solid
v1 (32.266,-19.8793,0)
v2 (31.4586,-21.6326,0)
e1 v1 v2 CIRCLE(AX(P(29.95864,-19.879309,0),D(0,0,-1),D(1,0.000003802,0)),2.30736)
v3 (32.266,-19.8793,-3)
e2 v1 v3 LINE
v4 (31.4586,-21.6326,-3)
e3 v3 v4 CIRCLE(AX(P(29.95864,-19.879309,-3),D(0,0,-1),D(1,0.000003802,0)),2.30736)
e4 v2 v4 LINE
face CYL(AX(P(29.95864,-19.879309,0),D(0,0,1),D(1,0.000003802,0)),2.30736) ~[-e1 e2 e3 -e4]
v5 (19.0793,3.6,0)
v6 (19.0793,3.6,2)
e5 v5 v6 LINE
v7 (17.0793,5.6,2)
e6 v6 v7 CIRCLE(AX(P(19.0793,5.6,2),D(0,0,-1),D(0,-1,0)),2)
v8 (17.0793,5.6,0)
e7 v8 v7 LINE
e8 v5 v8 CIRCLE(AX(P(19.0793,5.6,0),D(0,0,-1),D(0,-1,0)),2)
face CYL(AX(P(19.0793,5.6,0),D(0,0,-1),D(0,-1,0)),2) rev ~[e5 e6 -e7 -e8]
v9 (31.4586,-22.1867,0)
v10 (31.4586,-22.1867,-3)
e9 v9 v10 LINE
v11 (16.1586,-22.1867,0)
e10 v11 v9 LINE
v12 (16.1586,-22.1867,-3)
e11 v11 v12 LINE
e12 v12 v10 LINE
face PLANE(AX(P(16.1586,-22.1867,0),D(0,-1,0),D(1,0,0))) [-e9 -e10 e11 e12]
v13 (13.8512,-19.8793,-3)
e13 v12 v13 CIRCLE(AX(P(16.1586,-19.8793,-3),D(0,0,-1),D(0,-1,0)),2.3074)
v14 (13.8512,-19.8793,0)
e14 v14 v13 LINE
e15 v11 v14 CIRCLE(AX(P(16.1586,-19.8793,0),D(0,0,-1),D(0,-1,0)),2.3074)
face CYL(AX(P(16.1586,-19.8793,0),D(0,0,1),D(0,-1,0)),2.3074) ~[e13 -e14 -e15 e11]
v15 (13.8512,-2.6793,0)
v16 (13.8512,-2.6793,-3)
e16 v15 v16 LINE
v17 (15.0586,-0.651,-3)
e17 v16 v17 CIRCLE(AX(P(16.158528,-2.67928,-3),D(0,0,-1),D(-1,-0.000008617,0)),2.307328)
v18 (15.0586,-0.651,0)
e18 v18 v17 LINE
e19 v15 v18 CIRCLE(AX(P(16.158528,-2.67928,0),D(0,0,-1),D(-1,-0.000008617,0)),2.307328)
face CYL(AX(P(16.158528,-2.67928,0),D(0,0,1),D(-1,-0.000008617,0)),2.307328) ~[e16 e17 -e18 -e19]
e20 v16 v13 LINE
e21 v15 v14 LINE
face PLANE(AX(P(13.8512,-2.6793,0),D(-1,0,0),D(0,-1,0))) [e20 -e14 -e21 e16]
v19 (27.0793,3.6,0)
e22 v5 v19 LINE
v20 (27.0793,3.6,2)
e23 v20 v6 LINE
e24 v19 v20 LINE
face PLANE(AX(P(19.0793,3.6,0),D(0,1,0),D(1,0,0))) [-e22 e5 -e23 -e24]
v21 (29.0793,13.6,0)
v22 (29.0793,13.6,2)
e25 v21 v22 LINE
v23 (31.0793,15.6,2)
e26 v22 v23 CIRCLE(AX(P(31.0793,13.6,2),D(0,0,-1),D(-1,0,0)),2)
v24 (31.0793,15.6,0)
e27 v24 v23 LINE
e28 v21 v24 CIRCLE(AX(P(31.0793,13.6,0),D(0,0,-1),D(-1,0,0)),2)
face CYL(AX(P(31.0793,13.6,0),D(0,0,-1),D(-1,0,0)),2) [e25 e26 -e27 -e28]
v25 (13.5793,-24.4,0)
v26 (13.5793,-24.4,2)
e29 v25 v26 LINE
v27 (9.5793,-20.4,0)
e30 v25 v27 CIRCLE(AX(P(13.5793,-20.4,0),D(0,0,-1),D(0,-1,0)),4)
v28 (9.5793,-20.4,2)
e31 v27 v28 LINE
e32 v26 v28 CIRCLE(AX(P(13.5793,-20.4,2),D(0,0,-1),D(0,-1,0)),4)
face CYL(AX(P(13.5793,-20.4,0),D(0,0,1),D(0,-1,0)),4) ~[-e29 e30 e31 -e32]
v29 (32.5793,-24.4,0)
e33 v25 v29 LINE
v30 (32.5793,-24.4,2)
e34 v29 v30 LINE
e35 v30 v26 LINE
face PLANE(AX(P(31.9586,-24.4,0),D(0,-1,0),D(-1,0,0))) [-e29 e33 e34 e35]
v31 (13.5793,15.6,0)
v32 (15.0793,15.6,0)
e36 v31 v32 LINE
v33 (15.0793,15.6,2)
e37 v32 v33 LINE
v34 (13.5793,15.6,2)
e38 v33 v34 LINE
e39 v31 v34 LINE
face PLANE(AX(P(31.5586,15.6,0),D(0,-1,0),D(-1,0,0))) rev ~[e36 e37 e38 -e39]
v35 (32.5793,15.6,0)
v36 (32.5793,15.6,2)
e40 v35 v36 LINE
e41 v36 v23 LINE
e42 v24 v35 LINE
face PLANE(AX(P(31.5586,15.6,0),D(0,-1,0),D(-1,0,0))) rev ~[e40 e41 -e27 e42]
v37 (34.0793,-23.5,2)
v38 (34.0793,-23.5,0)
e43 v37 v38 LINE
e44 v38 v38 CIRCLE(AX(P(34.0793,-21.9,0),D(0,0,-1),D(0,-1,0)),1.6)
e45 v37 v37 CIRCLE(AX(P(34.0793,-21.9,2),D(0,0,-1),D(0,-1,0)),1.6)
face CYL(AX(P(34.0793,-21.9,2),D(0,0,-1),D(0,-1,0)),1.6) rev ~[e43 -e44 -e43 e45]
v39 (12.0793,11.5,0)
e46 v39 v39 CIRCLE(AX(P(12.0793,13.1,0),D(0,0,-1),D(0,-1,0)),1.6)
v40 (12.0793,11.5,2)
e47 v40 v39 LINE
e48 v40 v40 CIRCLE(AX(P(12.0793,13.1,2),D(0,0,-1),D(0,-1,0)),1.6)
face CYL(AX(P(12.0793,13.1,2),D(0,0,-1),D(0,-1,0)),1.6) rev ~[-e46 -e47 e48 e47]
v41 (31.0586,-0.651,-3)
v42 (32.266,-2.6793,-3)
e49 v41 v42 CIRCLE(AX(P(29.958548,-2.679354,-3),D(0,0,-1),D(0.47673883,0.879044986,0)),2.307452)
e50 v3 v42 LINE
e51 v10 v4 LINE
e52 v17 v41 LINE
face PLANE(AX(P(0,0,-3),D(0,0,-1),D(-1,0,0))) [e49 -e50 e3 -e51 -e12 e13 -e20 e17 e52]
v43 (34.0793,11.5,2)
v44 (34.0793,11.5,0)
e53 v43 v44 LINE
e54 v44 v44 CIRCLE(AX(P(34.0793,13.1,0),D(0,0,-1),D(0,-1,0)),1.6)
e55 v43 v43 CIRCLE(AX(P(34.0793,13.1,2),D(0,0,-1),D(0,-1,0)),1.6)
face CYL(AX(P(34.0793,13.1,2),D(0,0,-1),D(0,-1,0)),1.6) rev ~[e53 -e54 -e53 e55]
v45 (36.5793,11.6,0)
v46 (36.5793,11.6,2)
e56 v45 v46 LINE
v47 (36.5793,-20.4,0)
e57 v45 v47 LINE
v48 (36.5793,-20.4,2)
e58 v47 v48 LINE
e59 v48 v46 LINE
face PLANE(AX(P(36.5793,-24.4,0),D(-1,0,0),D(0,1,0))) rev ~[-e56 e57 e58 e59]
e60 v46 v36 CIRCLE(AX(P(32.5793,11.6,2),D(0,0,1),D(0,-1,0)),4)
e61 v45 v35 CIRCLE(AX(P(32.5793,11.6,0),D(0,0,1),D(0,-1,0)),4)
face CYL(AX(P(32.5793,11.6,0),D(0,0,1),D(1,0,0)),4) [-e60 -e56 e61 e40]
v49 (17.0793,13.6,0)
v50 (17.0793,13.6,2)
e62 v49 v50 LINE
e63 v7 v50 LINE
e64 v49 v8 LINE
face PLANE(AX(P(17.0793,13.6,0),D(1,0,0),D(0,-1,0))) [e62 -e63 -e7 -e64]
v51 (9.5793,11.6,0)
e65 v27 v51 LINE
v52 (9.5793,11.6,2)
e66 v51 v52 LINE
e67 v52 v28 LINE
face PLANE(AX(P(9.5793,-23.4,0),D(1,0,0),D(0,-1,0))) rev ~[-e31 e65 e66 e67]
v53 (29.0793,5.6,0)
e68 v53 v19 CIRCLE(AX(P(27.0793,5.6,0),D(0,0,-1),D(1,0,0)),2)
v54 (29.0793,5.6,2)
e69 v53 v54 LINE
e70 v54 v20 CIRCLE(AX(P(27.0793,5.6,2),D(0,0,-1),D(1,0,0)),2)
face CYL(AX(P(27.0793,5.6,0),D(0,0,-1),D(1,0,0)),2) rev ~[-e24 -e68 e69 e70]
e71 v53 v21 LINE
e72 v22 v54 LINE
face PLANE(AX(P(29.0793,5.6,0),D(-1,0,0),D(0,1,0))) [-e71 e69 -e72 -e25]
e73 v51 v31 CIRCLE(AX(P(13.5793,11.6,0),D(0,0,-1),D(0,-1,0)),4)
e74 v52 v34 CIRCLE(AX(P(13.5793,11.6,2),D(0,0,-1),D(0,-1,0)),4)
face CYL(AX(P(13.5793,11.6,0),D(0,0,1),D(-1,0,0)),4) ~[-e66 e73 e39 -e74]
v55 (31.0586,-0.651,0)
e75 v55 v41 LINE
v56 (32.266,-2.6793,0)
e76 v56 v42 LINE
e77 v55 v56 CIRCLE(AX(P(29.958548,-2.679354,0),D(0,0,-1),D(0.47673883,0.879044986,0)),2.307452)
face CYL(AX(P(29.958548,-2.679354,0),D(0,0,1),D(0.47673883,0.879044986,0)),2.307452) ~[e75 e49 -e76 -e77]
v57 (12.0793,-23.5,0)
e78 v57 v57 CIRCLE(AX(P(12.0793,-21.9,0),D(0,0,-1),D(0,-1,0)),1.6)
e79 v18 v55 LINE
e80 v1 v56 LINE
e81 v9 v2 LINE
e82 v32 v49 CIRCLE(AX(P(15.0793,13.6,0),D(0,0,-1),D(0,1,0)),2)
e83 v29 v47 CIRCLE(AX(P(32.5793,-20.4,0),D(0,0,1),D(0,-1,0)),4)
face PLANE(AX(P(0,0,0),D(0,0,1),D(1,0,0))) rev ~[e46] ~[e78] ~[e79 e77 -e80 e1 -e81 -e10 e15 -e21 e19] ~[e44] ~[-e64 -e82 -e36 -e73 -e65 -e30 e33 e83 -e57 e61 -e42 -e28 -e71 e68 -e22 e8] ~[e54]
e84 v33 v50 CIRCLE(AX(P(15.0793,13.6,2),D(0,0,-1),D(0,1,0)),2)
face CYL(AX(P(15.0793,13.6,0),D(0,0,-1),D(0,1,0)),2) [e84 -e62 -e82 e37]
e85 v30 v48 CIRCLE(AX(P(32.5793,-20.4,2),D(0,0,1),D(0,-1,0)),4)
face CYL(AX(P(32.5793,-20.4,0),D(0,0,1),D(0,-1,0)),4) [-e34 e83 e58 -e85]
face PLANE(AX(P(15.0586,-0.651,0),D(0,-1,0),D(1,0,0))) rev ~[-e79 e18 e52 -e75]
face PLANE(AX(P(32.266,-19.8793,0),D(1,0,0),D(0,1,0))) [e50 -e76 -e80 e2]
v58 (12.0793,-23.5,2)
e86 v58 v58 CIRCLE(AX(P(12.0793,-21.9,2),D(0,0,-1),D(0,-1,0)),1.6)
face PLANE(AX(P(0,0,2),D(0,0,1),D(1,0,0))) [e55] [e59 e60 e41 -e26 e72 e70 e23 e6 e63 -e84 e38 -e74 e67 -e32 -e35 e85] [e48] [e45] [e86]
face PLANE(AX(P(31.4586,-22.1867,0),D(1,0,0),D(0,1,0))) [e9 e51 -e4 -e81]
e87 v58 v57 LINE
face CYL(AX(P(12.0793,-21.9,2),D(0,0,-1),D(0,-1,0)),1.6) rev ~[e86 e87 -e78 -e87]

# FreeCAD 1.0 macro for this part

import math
import FreeCAD as App
import Part
import Sketcher

V = App.Vector
Q = App.Units.Quantity


def edges_at(feature, points):
    """Names of the edges that pass closest to the given points."""
    edges = feature.Shape.Edges
    near = lambda p: min(range(len(edges)), key=lambda i: edges[i].distToShape(Part.Vertex(*p))[0])
    return sorted({f"Edge{near(p) + 1}" for p in points})


def add_polygon(sketch, points):
    """Adds a closed chain of lines whose ends are joined by coincident constraints."""
    first, n = sketch.GeometryCount, len(points)
    for a, b in zip(points, points[1:] + points[:1]):
        sketch.addGeometry(Part.LineSegment(App.Vector(*a, 0), App.Vector(*b, 0)), False)
    for i in range(n):
        sketch.addConstraint(Sketcher.Constraint("Coincident", first + i, 2, first + (i + 1) % n, 1))

doc = App.newDocument("Part")
params = doc.addObject("Spreadsheet::Sheet", "Params")
for row, (alias, value) in enumerate([
    ("sketch1_width", "27 mm"),
    ("sketch1_height", "40 mm"),
    ("pad1_length", "2 mm"),
    ("sketch2_diameter", "3.2 mm"),
    ("hole_diameter", "3.2 mm"),
    ("sketch3_width", "16 mm"),
    ("sketch3_width2", "15.3 mm"),
    ("sketch3_height", "17.2 mm"),
    ("pad2_length", "3 mm"),
    ("fillet_radius", "4 mm"),
    ("sketch4_radius", "2 mm"),
    ("sketch4_width", "8 mm"),
    ("pocket1_length", "10 mm"),
], start=1):
    params.set(f"A{row}", alias)
    params.set(f"B{row}", "=" + value)
    params.setAlias(f"B{row}", alias)

body = doc.addObject("PartDesign::Body", "Body")

# Sketch on XY plane
sketch1 = body.newObject("Sketcher::SketchObject", "Sketch")
sketch1.AttachmentSupport = (doc.getObject("XY_Plane"), [""])
sketch1.MapMode = "FlatFace"
add_polygon(sketch1, [(36.5793, -24.4), (36.5793, 15.6), (9.5793, 15.6), (9.5793, -24.4)])  # lines 0-3
sketch1.addConstraint([
    Sketcher.Constraint("Vertical", 0),
    Sketcher.Constraint("Horizontal", 1),
    Sketcher.Constraint("Vertical", 2),
    Sketcher.Constraint("Horizontal", 3),
    Sketcher.Constraint("DistanceX", 1, 2, 1, 1, Q("27 mm")),
    Sketcher.Constraint("DistanceY", 0, 1, 0, 2, Q("40 mm")),
    Sketcher.Constraint("DistanceY", -1, 1, 0, 2, Q("15.6 mm")),
    Sketcher.Constraint("DistanceX", -1, 1, 0, 2, Q("36.5793 mm")),
])
sketch1.setExpression("Constraints[8]", "Params.sketch1_width")
sketch1.setExpression("Constraints[9]", "Params.sketch1_height")
pad1 = body.newObject("PartDesign::Pad", "Pad")
pad1.Profile = sketch1
pad1.setExpression("Length", "Params.pad1_length")

# Sketch on XY plane
sketch2 = body.newObject("Sketcher::SketchObject", "Sketch001")
sketch2.AttachmentSupport = (doc.getObject("XY_Plane"), [""])
sketch2.MapMode = "FlatFace"
sketch2.AttachmentOffset = App.Placement(V(0, 0, 2), App.Rotation())
sketch2.addGeometry([
    Part.Circle(V(34.0793, 13.1, 0), V(0, 0, 1), 1.6),
    Part.Circle(V(34.0793, -21.9, 0), V(0, 0, 1), 1.6),
    Part.Circle(V(12.0793, -21.9, 0), V(0, 0, 1), 1.6),
    Part.Circle(V(12.0793, 13.1, 0), V(0, 0, 1), 1.6),
], False)
sketch2.addConstraint([
    Sketcher.Constraint("Equal", 0, 1),
    Sketcher.Constraint("Equal", 1, 2),
    Sketcher.Constraint("Equal", 2, 3),
    Sketcher.Constraint("Horizontal", 1, 3, 2, 3),
    Sketcher.Constraint("Horizontal", 0, 3, 3, 3),
    Sketcher.Constraint("Vertical", 0, 3, 1, 3),
    Sketcher.Constraint("Vertical", 2, 3, 3, 3),
    Sketcher.Constraint("Diameter", 0, Q("3.2 mm")),
    Sketcher.Constraint("DistanceY", 1, 3, 0, 3, Q("35 mm")),
    Sketcher.Constraint("DistanceX", 2, 3, 1, 3, Q("22 mm")),
    Sketcher.Constraint("DistanceY", -1, 1, 0, 3, Q("13.1 mm")),
    Sketcher.Constraint("DistanceX", -1, 1, 0, 3, Q("34.0793 mm")),
])
sketch2.setExpression("Constraints[7]", "Params.sketch2_diameter")
doc.recompute()
hole = body.newObject("PartDesign::Hole", "Hole")
hole.Profile = sketch2
hole.ThreadType = "None"
hole.setExpression("Diameter", "Params.hole_diameter")
hole.DepthType = "ThroughAll"

# Sketch on XY plane
sketch3 = body.newObject("Sketcher::SketchObject", "Sketch002")
sketch3.AttachmentSupport = (doc.getObject("XY_Plane"), [""])
sketch3.MapMode = "FlatFace"
sketch3.addGeometry([
    Part.LineSegment(V(31.4586, -21.6326, 0), V(31.4586, -22.1867, 0)),  # 0
    Part.LineSegment(V(31.4586, -22.1867, 0), V(16.1586, -22.1867, 0)),  # 1
    Part.ArcOfCircle(Part.Circle(V(16.1586, -19.8793, 0), V(0, 0, 1), 2.3074), math.radians(180), math.radians(270)),  # 2
    Part.LineSegment(V(13.8512, -19.8793, 0), V(13.8512, -2.6793, 0)),  # 3
    Part.ArcOfCircle(Part.Circle(V(16.1586, -2.6793, 0), V(0, 0, 1), 2.3074), math.radians(118.472132), math.radians(180)),  # 4
    Part.LineSegment(V(15.0586, -0.651, 0), V(31.0586, -0.651, 0)),  # 5
    Part.ArcOfCircle(Part.Circle(V(29.9586, -2.6793, 0), V(0, 0, 1), 2.30738), math.radians(0), math.radians(61.527868)),  # 6
    Part.LineSegment(V(32.266, -2.6793, 0), V(32.266, -19.8793, 0)),  # 7
    Part.ArcOfCircle(Part.Circle(V(29.9586, -19.8793, 0), V(0, 0, 1), 2.3074), math.radians(-49.452034), math.radians(0)),  # 8
], False)
sketch3.addConstraint([
    Sketcher.Constraint("Coincident", 0, 2, 1, 1),
    Sketcher.Constraint("Tangent", 1, 2, 2, 2),
    Sketcher.Constraint("Tangent", 2, 1, 3, 1),
    Sketcher.Constraint("Tangent", 3, 2, 4, 2),
    Sketcher.Constraint("Coincident", 4, 1, 5, 1),
    Sketcher.Constraint("Coincident", 5, 2, 6, 2),
    Sketcher.Constraint("Tangent", 6, 1, 7, 1),
    Sketcher.Constraint("Tangent", 7, 2, 8, 2),
    Sketcher.Constraint("Coincident", 8, 1, 0, 1),
    Sketcher.Constraint("Vertical", 0),
    Sketcher.Constraint("Horizontal", 1),
    Sketcher.Constraint("Vertical", 3),
    Sketcher.Constraint("Horizontal", 5),
    Sketcher.Constraint("Vertical", 7),
    Sketcher.Constraint("Equal", 2, 4),
    Sketcher.Constraint("Equal", 4, 6),
    Sketcher.Constraint("Equal", 6, 8),
    Sketcher.Constraint("Horizontal", 4, 3, 6, 3),
    Sketcher.Constraint("Horizontal", 2, 3, 8, 3),
    Sketcher.Constraint("DistanceX", 5, 1, 5, 2, Q("16 mm")),
    Sketcher.Constraint("DistanceX", 1, 2, 1, 1, Q("15.3 mm")),
    Sketcher.Constraint("DistanceY", 3, 1, 3, 2, Q("17.2 mm")),
    Sketcher.Constraint("Radius", 2, Q("2.3074 mm")),
    Sketcher.Constraint("DistanceX", 4, 3, 6, 3, Q("13.8 mm")),
    Sketcher.Constraint("DistanceY", 4, 1, -1, 1, Q("0.651 mm")),
    Sketcher.Constraint("DistanceX", -1, 1, 6, 1, Q("32.266 mm")),
])
sketch3.setExpression("Constraints[19]", "Params.sketch3_width")
sketch3.setExpression("Constraints[20]", "Params.sketch3_width2")
sketch3.setExpression("Constraints[21]", "Params.sketch3_height")
pad2 = body.newObject("PartDesign::Pad", "Pad001")
pad2.Profile = sketch3
pad2.setExpression("Length", "Params.pad2_length")
pad2.Reversed = True
doc.recompute()

fillet = body.newObject("PartDesign::Fillet", "Fillet")
fillet.Base = (pad2, edges_at(pad2, [
    (9.579, 15.6, 1),
    (36.579, 15.6, 1),
    (9.579, -24.4, 1),
    (36.579, -24.4, 1),
]))
fillet.setExpression("Radius", "Params.fillet_radius")

# Sketch on XY plane
sketch4 = body.newObject("Sketcher::SketchObject", "Sketch003")
sketch4.AttachmentSupport = (doc.getObject("XY_Plane"), [""])
sketch4.MapMode = "FlatFace"
sketch4.addGeometry([
    Part.ArcOfCircle(Part.Circle(V(31.0793, 13.6, 0), V(0, 0, 1), 2), math.radians(90), math.radians(180)),  # 0
    Part.LineSegment(V(29.0793, 13.6, 0), V(29.0793, 5.6, 0)),  # 1
    Part.ArcOfCircle(Part.Circle(V(27.0793, 5.6, 0), V(0, 0, 1), 2), math.radians(-90), math.radians(0)),  # 2
    Part.LineSegment(V(27.0793, 3.6, 0), V(19.0793, 3.6, 0)),  # 3
    Part.ArcOfCircle(Part.Circle(V(19.0793, 5.6, 0), V(0, 0, 1), 2), math.radians(180), math.radians(270)),  # 4
    Part.LineSegment(V(17.0793, 5.6, 0), V(17.0793, 13.6, 0)),  # 5
    Part.ArcOfCircle(Part.Circle(V(15.0793, 13.6, 0), V(0, 0, 1), 2), math.radians(0), math.radians(90)),  # 6
    Part.LineSegment(V(15.0793, 15.6, 0), V(31.0793, 15.6, 0)),  # 7
], False)
sketch4.addConstraint([
    Sketcher.Constraint("Tangent", 0, 2, 1, 1),
    Sketcher.Constraint("Tangent", 1, 2, 2, 2),
    Sketcher.Constraint("Tangent", 2, 1, 3, 1),
    Sketcher.Constraint("Tangent", 3, 2, 4, 2),
    Sketcher.Constraint("Tangent", 4, 1, 5, 1),
    Sketcher.Constraint("Tangent", 5, 2, 6, 1),
    Sketcher.Constraint("Tangent", 6, 2, 7, 1),
    Sketcher.Constraint("Tangent", 7, 2, 0, 1),
    Sketcher.Constraint("Vertical", 1),
    Sketcher.Constraint("Horizontal", 3),
    Sketcher.Constraint("Vertical", 5),
    Sketcher.Constraint("Horizontal", 7),
    Sketcher.Constraint("Equal", 0, 2),
    Sketcher.Constraint("Equal", 2, 4),
    Sketcher.Constraint("Equal", 4, 6),
    Sketcher.Constraint("Equal", 3, 1),
    Sketcher.Constraint("Radius", 0, Q("2 mm")),
    Sketcher.Constraint("DistanceX", 3, 2, 3, 1, Q("8 mm")),
    Sketcher.Constraint("DistanceY", -1, 1, 0, 3, Q("13.6 mm")),
    Sketcher.Constraint("DistanceX", -1, 1, 0, 3, Q("31.0793 mm")),
])
sketch4.setExpression("Constraints[16]", "Params.sketch4_radius")
sketch4.setExpression("Constraints[17]", "Params.sketch4_width")
pocket1 = body.newObject("PartDesign::Pocket", "Pocket")
pocket1.Profile = sketch4
pocket1.setExpression("Length", "Params.pocket1_length")
pocket1.Reversed = True

doc.recompute()
